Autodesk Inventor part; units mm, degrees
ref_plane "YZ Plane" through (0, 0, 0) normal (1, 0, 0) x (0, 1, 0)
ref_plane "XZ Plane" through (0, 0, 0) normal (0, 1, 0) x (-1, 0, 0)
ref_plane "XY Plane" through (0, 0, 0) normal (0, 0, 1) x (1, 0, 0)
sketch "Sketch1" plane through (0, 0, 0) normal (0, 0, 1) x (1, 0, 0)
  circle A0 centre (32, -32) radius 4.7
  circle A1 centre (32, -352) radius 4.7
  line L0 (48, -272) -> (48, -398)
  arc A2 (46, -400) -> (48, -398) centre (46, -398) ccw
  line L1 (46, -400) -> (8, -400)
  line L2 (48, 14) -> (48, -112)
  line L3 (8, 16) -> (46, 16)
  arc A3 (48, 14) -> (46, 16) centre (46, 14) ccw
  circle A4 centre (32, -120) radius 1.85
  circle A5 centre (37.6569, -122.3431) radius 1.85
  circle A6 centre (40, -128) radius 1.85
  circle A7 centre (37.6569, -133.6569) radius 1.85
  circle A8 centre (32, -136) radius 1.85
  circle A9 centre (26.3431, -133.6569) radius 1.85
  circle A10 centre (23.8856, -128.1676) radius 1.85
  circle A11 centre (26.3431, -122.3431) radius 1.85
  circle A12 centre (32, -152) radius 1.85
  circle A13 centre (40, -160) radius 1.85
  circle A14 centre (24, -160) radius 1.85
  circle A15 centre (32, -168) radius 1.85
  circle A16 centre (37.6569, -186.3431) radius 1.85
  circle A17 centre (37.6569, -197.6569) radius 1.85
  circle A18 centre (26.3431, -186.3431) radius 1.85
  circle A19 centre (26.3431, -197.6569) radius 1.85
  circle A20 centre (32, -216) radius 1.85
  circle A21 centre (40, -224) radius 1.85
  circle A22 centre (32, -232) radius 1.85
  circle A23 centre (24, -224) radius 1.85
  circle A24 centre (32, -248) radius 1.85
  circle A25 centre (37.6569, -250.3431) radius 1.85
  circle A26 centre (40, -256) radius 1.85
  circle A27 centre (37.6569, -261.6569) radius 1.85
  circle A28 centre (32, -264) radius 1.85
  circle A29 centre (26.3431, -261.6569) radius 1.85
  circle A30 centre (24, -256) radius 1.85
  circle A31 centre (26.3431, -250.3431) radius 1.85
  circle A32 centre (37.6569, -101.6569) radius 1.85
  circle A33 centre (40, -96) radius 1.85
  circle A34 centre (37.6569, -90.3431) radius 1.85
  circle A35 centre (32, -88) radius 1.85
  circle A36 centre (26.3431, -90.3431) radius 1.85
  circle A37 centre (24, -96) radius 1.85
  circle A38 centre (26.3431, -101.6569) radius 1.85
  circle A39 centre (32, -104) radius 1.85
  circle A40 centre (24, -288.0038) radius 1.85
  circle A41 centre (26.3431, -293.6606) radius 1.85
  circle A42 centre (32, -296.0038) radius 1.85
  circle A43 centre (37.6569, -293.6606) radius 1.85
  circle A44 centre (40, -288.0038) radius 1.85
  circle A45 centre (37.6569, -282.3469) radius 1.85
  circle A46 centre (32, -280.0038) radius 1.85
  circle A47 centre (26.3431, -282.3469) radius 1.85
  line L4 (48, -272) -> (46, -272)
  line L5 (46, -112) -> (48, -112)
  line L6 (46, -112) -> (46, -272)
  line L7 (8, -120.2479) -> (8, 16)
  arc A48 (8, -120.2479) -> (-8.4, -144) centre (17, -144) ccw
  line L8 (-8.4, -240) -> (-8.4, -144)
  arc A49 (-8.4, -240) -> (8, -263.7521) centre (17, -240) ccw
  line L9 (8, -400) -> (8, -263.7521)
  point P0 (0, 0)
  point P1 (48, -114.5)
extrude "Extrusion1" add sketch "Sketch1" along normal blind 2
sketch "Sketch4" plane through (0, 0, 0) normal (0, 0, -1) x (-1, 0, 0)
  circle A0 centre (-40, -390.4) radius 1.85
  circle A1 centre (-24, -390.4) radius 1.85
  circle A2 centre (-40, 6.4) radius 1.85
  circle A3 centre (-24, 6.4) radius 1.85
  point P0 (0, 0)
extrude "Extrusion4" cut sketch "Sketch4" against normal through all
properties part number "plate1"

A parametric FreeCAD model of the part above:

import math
import FreeCAD as App
import Part
import Sketcher
from FreeCAD import Vector

doc = App.newDocument("Part")
params = doc.addObject("Spreadsheet::Sheet", "Params")
for row, (alias, value) in enumerate([
    ("sketch1_radius", "2 mm"),
    ("sketch1_diameter", "9.4 mm"),
    ("sketch1_diameter2", "3.7 mm"),
    ("sketch1_radius2", "25.4 mm"),
    ("sketch1_width", "38 mm"),
    ("pad1_length", "2 mm"),
    ("sketch2_diameter", "3.7 mm"),
], start=1):
    params.set(f"A{row}", alias)
    params.set(f"B{row}", "=" + value)
    params.setAlias(f"B{row}", alias)

body = doc.addObject("PartDesign::Body", "Body")

sketch1 = body.newObject("Sketcher::SketchObject", "Sketch")
sketch1.AttachmentSupport = (doc.getObject("XY_Plane"), [""])
sketch1.MapMode = "FlatFace"
sketch1.addGeometry([
    Part.LineSegment(Vector(48, -398, 0), Vector(48, -272, 0)),
    Part.LineSegment(Vector(48, -272, 0), Vector(46, -272, 0)),
    Part.LineSegment(Vector(46, -272, 0), Vector(46, -112, 0)),
    Part.LineSegment(Vector(46, -112, 0), Vector(48, -112, 0)),
    Part.LineSegment(Vector(48, -112, 0), Vector(48, 14, 0)),
    Part.ArcOfCircle(Part.Circle(Vector(46, 14, 0), Vector(0, 0, 1), 2), math.radians(0), math.radians(90)),
    Part.LineSegment(Vector(46, 16, 0), Vector(8, 16, 0)),
    Part.LineSegment(Vector(8, 16, 0), Vector(8, -120.2, 0)),
    Part.ArcOfCircle(Part.Circle(Vector(17, -144, 0), Vector(0, 0, 1), 25.4), math.radians(111), math.radians(180)),
    Part.LineSegment(Vector(-8.4, -144, 0), Vector(-8.4, -240, 0)),
    Part.ArcOfCircle(Part.Circle(Vector(17, -240, 0), Vector(0, 0, 1), 25.4), math.radians(180), math.radians(249)),
    Part.LineSegment(Vector(8, -263.8, 0), Vector(8, -400, 0)),
    Part.LineSegment(Vector(8, -400, 0), Vector(46, -400, 0)),
    Part.ArcOfCircle(Part.Circle(Vector(46, -398, 0), Vector(0, 0, 1), 2), math.radians(-90), math.radians(0)),
    Part.Circle(Vector(32, -352, 0), Vector(0, 0, 1), 4.7),
    Part.Circle(Vector(32, -296, 0), Vector(0, 0, 1), 1.9),
    Part.Circle(Vector(24, -288, 0), Vector(0, 0, 1), 1.9),
    Part.Circle(Vector(26.3, -293.7, 0), Vector(0, 0, 1), 1.9),
    Part.Circle(Vector(26.3, -282.3, 0), Vector(0, 0, 1), 1.9),
    Part.Circle(Vector(26.3, -261.7, 0), Vector(0, 0, 1), 1.9),
    Part.Circle(Vector(24, -256, 0), Vector(0, 0, 1), 1.9),
    Part.Circle(Vector(26.3, -250.3, 0), Vector(0, 0, 1), 1.9),
    Part.Circle(Vector(32, -280, 0), Vector(0, 0, 1), 1.9),
    Part.Circle(Vector(32, -264, 0), Vector(0, 0, 1), 1.9),
    Part.Circle(Vector(32, -248, 0), Vector(0, 0, 1), 1.9),
    Part.Circle(Vector(24, -224, 0), Vector(0, 0, 1), 1.9),
    Part.Circle(Vector(26.3, -197.7, 0), Vector(0, 0, 1), 1.9),
    Part.Circle(Vector(32, -232, 0), Vector(0, 0, 1), 1.9),
    Part.Circle(Vector(32, -216, 0), Vector(0, 0, 1), 1.9),
    Part.Circle(Vector(37.7, -293.7, 0), Vector(0, 0, 1), 1.9),
    Part.Circle(Vector(40, -288, 0), Vector(0, 0, 1), 1.9),
    Part.Circle(Vector(37.7, -282.3, 0), Vector(0, 0, 1), 1.9),
    Part.Circle(Vector(37.7, -261.7, 0), Vector(0, 0, 1), 1.9),
    Part.Circle(Vector(37.7, -250.3, 0), Vector(0, 0, 1), 1.9),
    Part.Circle(Vector(40, -256, 0), Vector(0, 0, 1), 1.9),
    Part.Circle(Vector(40, -224, 0), Vector(0, 0, 1), 1.9),
    Part.Circle(Vector(37.7, -197.7, 0), Vector(0, 0, 1), 1.9),
    Part.Circle(Vector(26.3, -186.3, 0), Vector(0, 0, 1), 1.9),
    Part.Circle(Vector(24, -160, 0), Vector(0, 0, 1), 1.9),
    Part.Circle(Vector(32, -168, 0), Vector(0, 0, 1), 1.9),
    Part.Circle(Vector(32, -152, 0), Vector(0, 0, 1), 1.9),
    Part.Circle(Vector(23.9, -128.2, 0), Vector(0, 0, 1), 1.9),
    Part.Circle(Vector(26.3, -133.7, 0), Vector(0, 0, 1), 1.9),
    Part.Circle(Vector(26.3, -122.3, 0), Vector(0, 0, 1), 1.9),
    Part.Circle(Vector(26.3, -101.7, 0), Vector(0, 0, 1), 1.9),
    Part.Circle(Vector(24, -96, 0), Vector(0, 0, 1), 1.9),
    Part.Circle(Vector(26.3, -90.3, 0), Vector(0, 0, 1), 1.9),
    Part.Circle(Vector(32, -136, 0), Vector(0, 0, 1), 1.9),
    Part.Circle(Vector(32, -120, 0), Vector(0, 0, 1), 1.9),
    Part.Circle(Vector(32, -104, 0), Vector(0, 0, 1), 1.9),
    Part.Circle(Vector(37.7, -186.3, 0), Vector(0, 0, 1), 1.9),
    Part.Circle(Vector(40, -160, 0), Vector(0, 0, 1), 1.9),
    Part.Circle(Vector(37.7, -133.7, 0), Vector(0, 0, 1), 1.9),
    Part.Circle(Vector(40, -128, 0), Vector(0, 0, 1), 1.9),
    Part.Circle(Vector(37.7, -122.3, 0), Vector(0, 0, 1), 1.9),
    Part.Circle(Vector(37.7, -101.7, 0), Vector(0, 0, 1), 1.9),
    Part.Circle(Vector(37.7, -90.3, 0), Vector(0, 0, 1), 1.9),
    Part.Circle(Vector(40, -96, 0), Vector(0, 0, 1), 1.9),
    Part.Circle(Vector(32, -88, 0), Vector(0, 0, 1), 1.9),
    Part.Circle(Vector(32, -32, 0), Vector(0, 0, 1), 4.7),
], False)
sketch1.addConstraint([
    Sketcher.Constraint("Coincident", 0, 2, 1, 1),
    Sketcher.Constraint("Coincident", 1, 2, 2, 1),
    Sketcher.Constraint("Coincident", 2, 2, 3, 1),
    Sketcher.Constraint("Coincident", 3, 2, 4, 1),
    Sketcher.Constraint("Tangent", 4, 2, 5, 1),
    Sketcher.Constraint("Tangent", 5, 2, 6, 1),
    Sketcher.Constraint("Coincident", 6, 2, 7, 1),
    Sketcher.Constraint("Coincident", 7, 2, 8, 1),
    Sketcher.Constraint("Tangent", 8, 2, 9, 1),
    Sketcher.Constraint("Tangent", 9, 2, 10, 1),
    Sketcher.Constraint("Coincident", 10, 2, 11, 1),
    Sketcher.Constraint("Coincident", 11, 2, 12, 1),
    Sketcher.Constraint("Tangent", 12, 2, 13, 1),
    Sketcher.Constraint("Tangent", 13, 2, 0, 1),
    Sketcher.Constraint("Vertical", 0),
    Sketcher.Constraint("Horizontal", 1),
    Sketcher.Constraint("Vertical", 2),
    Sketcher.Constraint("Horizontal", 3),
    Sketcher.Constraint("Vertical", 4),
    Sketcher.Constraint("Horizontal", 6),
    Sketcher.Constraint("Vertical", 7),
    Sketcher.Constraint("Vertical", 9),
    Sketcher.Constraint("Vertical", 11),
    Sketcher.Constraint("Horizontal", 12),
    Sketcher.Constraint("Equal", 8, 10),
    Sketcher.Constraint("Equal", 5, 13),
    Sketcher.Constraint("Equal", 15, 16),
    Sketcher.Constraint("Equal", 16, 17),
    Sketcher.Constraint("Equal", 17, 18),
    Sketcher.Constraint("Equal", 18, 19),
    Sketcher.Constraint("Equal", 19, 20),
    Sketcher.Constraint("Equal", 20, 21),
    Sketcher.Constraint("Equal", 21, 22),
    Sketcher.Constraint("Equal", 22, 23),
    Sketcher.Constraint("Equal", 23, 24),
    Sketcher.Constraint("Equal", 24, 25),
    Sketcher.Constraint("Equal", 25, 26),
    Sketcher.Constraint("Equal", 26, 27),
    Sketcher.Constraint("Equal", 27, 28),
    Sketcher.Constraint("Equal", 28, 29),
    Sketcher.Constraint("Equal", 29, 30),
    Sketcher.Constraint("Equal", 30, 31),
    Sketcher.Constraint("Equal", 31, 32),
    Sketcher.Constraint("Equal", 32, 33),
    Sketcher.Constraint("Equal", 33, 34),
    Sketcher.Constraint("Equal", 34, 35),
    Sketcher.Constraint("Equal", 35, 36),
    Sketcher.Constraint("Equal", 36, 37),
    Sketcher.Constraint("Equal", 37, 38),
    Sketcher.Constraint("Equal", 38, 39),
    Sketcher.Constraint("Equal", 39, 40),
    Sketcher.Constraint("Equal", 40, 41),
    Sketcher.Constraint("Equal", 41, 42),
    Sketcher.Constraint("Equal", 42, 43),
    Sketcher.Constraint("Equal", 43, 44),
    Sketcher.Constraint("Equal", 44, 45),
    Sketcher.Constraint("Equal", 45, 46),
    Sketcher.Constraint("Equal", 46, 47),
    Sketcher.Constraint("Equal", 47, 48),
    Sketcher.Constraint("Equal", 48, 49),
    Sketcher.Constraint("Equal", 49, 50),
    Sketcher.Constraint("Equal", 50, 51),
    Sketcher.Constraint("Equal", 51, 52),
    Sketcher.Constraint("Equal", 52, 53),
    Sketcher.Constraint("Equal", 53, 54),
    Sketcher.Constraint("Equal", 54, 55),
    Sketcher.Constraint("Equal", 55, 56),
    Sketcher.Constraint("Equal", 56, 57),
    Sketcher.Constraint("Equal", 57, 58),
    Sketcher.Constraint("Equal", 14, 59),
    Sketcher.Constraint("Horizontal", 17, 3, 29, 3),
    Sketcher.Constraint("Horizontal", 16, 3, 30, 3),
    Sketcher.Constraint("Horizontal", 18, 3, 31, 3),
    Sketcher.Constraint("Horizontal", 19, 3, 32, 3),
    Sketcher.Constraint("Horizontal", 21, 3, 33, 3),
    Sketcher.Constraint("Horizontal", 20, 3, 34, 3),
    Sketcher.Constraint("Horizontal", 25, 3, 35, 3),
    Sketcher.Constraint("Horizontal", 26, 3, 36, 3),
    Sketcher.Constraint("Horizontal", 37, 3, 50, 3),
    Sketcher.Constraint("Horizontal", 38, 3, 51, 3),
    Sketcher.Constraint("Horizontal", 42, 3, 52, 3),
    Sketcher.Constraint("Horizontal", 43, 3, 54, 3),
    Sketcher.Constraint("Horizontal", 44, 3, 55, 3),
    Sketcher.Constraint("Horizontal", 46, 3, 56, 3),
    Sketcher.Constraint("Horizontal", 45, 3, 57, 3),
    Sketcher.Constraint("Vertical", 5, 3, 13, 3),
    Sketcher.Constraint("Vertical", 14, 3, 15, 3),
    Sketcher.Constraint("Vertical", 17, 3, 18, 3),
    Sketcher.Constraint("Vertical", 18, 3, 19, 3),
    Sketcher.Constraint("Vertical", 16, 3, 20, 3),
    Sketcher.Constraint("Vertical", 19, 3, 21, 3),
    Sketcher.Constraint("Vertical", 15, 3, 22, 3),
    Sketcher.Constraint("Vertical", 22, 3, 23, 3),
    Sketcher.Constraint("Vertical", 23, 3, 24, 3),
    Sketcher.Constraint("Vertical", 20, 3, 25, 3),
    Sketcher.Constraint("Vertical", 21, 3, 26, 3),
    Sketcher.Constraint("Vertical", 24, 3, 27, 3),
    Sketcher.Constraint("Vertical", 27, 3, 28, 3),
    Sketcher.Constraint("Vertical", 29, 3, 31, 3),
    Sketcher.Constraint("Vertical", 31, 3, 32, 3),
    Sketcher.Constraint("Vertical", 32, 3, 33, 3),
    Sketcher.Constraint("Vertical", 30, 3, 34, 3),
    Sketcher.Constraint("Vertical", 34, 3, 35, 3),
    Sketcher.Constraint("Vertical", 33, 3, 36, 3),
    Sketcher.Constraint("Vertical", 26, 3, 37, 3),
    Sketcher.Constraint("Vertical", 25, 3, 38, 3),
    Sketcher.Constraint("Vertical", 28, 3, 39, 3),
    Sketcher.Constraint("Vertical", 39, 3, 40, 3),
    Sketcher.Constraint("Vertical", 37, 3, 42, 3),
    Sketcher.Constraint("Vertical", 42, 3, 43, 3),
    Sketcher.Constraint("Vertical", 43, 3, 44, 3),
    Sketcher.Constraint("Vertical", 38, 3, 45, 3),
    Sketcher.Constraint("Vertical", 44, 3, 46, 3),
    Sketcher.Constraint("Vertical", 40, 3, 47, 3),
    Sketcher.Constraint("Vertical", 47, 3, 48, 3),
    Sketcher.Constraint("Vertical", 48, 3, 49, 3),
    Sketcher.Constraint("Vertical", 36, 3, 50, 3),
    Sketcher.Constraint("Vertical", 35, 3, 51, 3),
    Sketcher.Constraint("Vertical", 50, 3, 52, 3),
    Sketcher.Constraint("Vertical", 51, 3, 53, 3),
    Sketcher.Constraint("Vertical", 52, 3, 54, 3),
    Sketcher.Constraint("Vertical", 54, 3, 55, 3),
    Sketcher.Constraint("Vertical", 55, 3, 56, 3),
    Sketcher.Constraint("Vertical", 53, 3, 57, 3),
    Sketcher.Constraint("Vertical", 49, 3, 58, 3),
    Sketcher.Constraint("Vertical", 58, 3, 59, 3),
    Sketcher.Constraint("Vertical", 13, 3, 1, 2),
    Sketcher.Constraint("Vertical", 7, 2, 10, 2),
    Sketcher.Constraint("Equal", 0, 4),
    Sketcher.Constraint("Equal", 7, 11),
    Sketcher.Constraint("Radius", 5, 2.0),
    Sketcher.Constraint("Diameter", 14, 9.4),
    Sketcher.Constraint("Diameter", 15, 3.7),
    Sketcher.Constraint("Radius", 8, 25.4),
    Sketcher.Constraint("DistanceX", 6, 2, 6, 1, 38.0),
    Sketcher.Constraint("DistanceY", 0, 1, 0, 2, 126.0),
    Sketcher.Constraint("DistanceY", 2, 1, 2, 2, 160.0),
    Sketcher.Constraint("DistanceY", 9, 2, 9, 1, 96.0),
    Sketcher.Constraint("DistanceX", -1, 1, 5, 3, 46.0),
    Sketcher.Constraint("DistanceY", -1, 1, 5, 3, 14.0),
    Sketcher.Constraint("DistanceX", -1, 1, 8, 3, 17.0),
    Sketcher.Constraint("DistanceX", -1, 1, 14, 3, 32.0),
    Sketcher.Constraint("DistanceY", 14, 3, -1, 1, 352.0),
    Sketcher.Constraint("DistanceX", -1, 1, 16, 3, 24.0),
    Sketcher.Constraint("DistanceY", 20, 3, -1, 1, 256.0),
    Sketcher.Constraint("DistanceY", 23, 3, -1, 1, 264.0),
    Sketcher.Constraint("DistanceY", 24, 3, -1, 1, 248.0),
    Sketcher.Constraint("DistanceY", 25, 3, -1, 1, 224.0),
    Sketcher.Constraint("DistanceY", 27, 3, -1, 1, 232.0),
    Sketcher.Constraint("DistanceY", 28, 3, -1, 1, 216.0),
    Sketcher.Constraint("DistanceX", -1, 1, 30, 3, 40.0),
    Sketcher.Constraint("DistanceY", 38, 3, -1, 1, 160.0),
    Sketcher.Constraint("DistanceY", 39, 3, -1, 1, 168.0),
    Sketcher.Constraint("DistanceY", 40, 3, -1, 1, 152.0),
    Sketcher.Constraint("DistanceY", 45, 3, -1, 1, 96.0),
    Sketcher.Constraint("DistanceY", 47, 3, -1, 1, 136.0),
    Sketcher.Constraint("DistanceY", 48, 3, -1, 1, 120.0),
    Sketcher.Constraint("DistanceY", 49, 3, -1, 1, 104.0),
    Sketcher.Constraint("DistanceY", 53, 3, -1, 1, 128.0),
    Sketcher.Constraint("DistanceY", 58, 3, -1, 1, 88.0),
    Sketcher.Constraint("DistanceY", 59, 3, -1, 1, 32.0),
    Sketcher.Constraint("DistanceX", -1, 1, 17, 3, 26.343),
    Sketcher.Constraint("DistanceY", 18, 3, -1, 1, 282.347),
    Sketcher.Constraint("DistanceY", 19, 3, -1, 1, 261.657),
    Sketcher.Constraint("DistanceY", 21, 3, -1, 1, 250.343),
    Sketcher.Constraint("DistanceY", 26, 3, -1, 1, 197.657),
    Sketcher.Constraint("DistanceX", -1, 1, 29, 3, 37.657),
    Sketcher.Constraint("DistanceY", 37, 3, -1, 1, 186.343),
    Sketcher.Constraint("DistanceY", 42, 3, -1, 1, 133.657),
    Sketcher.Constraint("DistanceY", 43, 3, -1, 1, 122.343),
    Sketcher.Constraint("DistanceY", 44, 3, -1, 1, 101.657),
    Sketcher.Constraint("DistanceY", 46, 3, -1, 1, 90.343),
    Sketcher.Constraint("DistanceY", 15, 3, -1, 1, 296.0038),
    Sketcher.Constraint("DistanceY", 16, 3, -1, 1, 288.0038),
    Sketcher.Constraint("DistanceY", 17, 3, -1, 1, 293.6606),
    Sketcher.Constraint("DistanceY", 22, 3, -1, 1, 280.0038),
    Sketcher.Constraint("DistanceX", -1, 1, 41, 3, 23.8856),
    Sketcher.Constraint("DistanceY", 41, 3, -1, 1, 128.1676),
])
sketch1.setExpression("Constraints[130]", "Params.sketch1_radius")
sketch1.setExpression("Constraints[131]", "Params.sketch1_diameter")
sketch1.setExpression("Constraints[132]", "Params.sketch1_diameter2")
sketch1.setExpression("Constraints[133]", "Params.sketch1_radius2")
sketch1.setExpression("Constraints[134]", "Params.sketch1_width")
pad1 = body.newObject("PartDesign::Pad", "Pad")
pad1.Profile = sketch1
pad1.setExpression("Length", "Params.pad1_length")

sketch2 = body.newObject("Sketcher::SketchObject", "Sketch001")
sketch2.AttachmentSupport = (doc.getObject("XY_Plane"), [""])
sketch2.MapMode = "FlatFace"
sketch2.addGeometry([
    Part.Circle(Vector(40, -390.4, 0), Vector(0, 0, 1), 1.9),
    Part.Circle(Vector(24, -390.4, 0), Vector(0, 0, 1), 1.9),
    Part.Circle(Vector(40, 6.4, 0), Vector(0, 0, 1), 1.9),
    Part.Circle(Vector(24, 6.4, 0), Vector(0, 0, 1), 1.9),
], False)
sketch2.addConstraint([
    Sketcher.Constraint("Equal", 0, 1),
    Sketcher.Constraint("Equal", 1, 2),
    Sketcher.Constraint("Equal", 2, 3),
    Sketcher.Constraint("Horizontal", 0, 3, 1, 3),
    Sketcher.Constraint("Horizontal", 2, 3, 3, 3),
    Sketcher.Constraint("Vertical", 0, 3, 2, 3),
    Sketcher.Constraint("Vertical", 1, 3, 3, 3),
    Sketcher.Constraint("Diameter", 0, 3.7),
    Sketcher.Constraint("DistanceX", -1, 1, 0, 3, 40.0),
    Sketcher.Constraint("DistanceX", -1, 1, 1, 3, 24.0),
    Sketcher.Constraint("DistanceY", 0, 3, -1, 1, 390.4),
    Sketcher.Constraint("DistanceY", -1, 1, 2, 3, 6.4),
])
sketch2.setExpression("Constraints[7]", "Params.sketch2_diameter")
pocket1 = body.newObject("PartDesign::Pocket", "Pocket")
pocket1.Profile = sketch2
pocket1.Type = "ThroughAll"
pocket1.Reversed = True

doc.recompute()
